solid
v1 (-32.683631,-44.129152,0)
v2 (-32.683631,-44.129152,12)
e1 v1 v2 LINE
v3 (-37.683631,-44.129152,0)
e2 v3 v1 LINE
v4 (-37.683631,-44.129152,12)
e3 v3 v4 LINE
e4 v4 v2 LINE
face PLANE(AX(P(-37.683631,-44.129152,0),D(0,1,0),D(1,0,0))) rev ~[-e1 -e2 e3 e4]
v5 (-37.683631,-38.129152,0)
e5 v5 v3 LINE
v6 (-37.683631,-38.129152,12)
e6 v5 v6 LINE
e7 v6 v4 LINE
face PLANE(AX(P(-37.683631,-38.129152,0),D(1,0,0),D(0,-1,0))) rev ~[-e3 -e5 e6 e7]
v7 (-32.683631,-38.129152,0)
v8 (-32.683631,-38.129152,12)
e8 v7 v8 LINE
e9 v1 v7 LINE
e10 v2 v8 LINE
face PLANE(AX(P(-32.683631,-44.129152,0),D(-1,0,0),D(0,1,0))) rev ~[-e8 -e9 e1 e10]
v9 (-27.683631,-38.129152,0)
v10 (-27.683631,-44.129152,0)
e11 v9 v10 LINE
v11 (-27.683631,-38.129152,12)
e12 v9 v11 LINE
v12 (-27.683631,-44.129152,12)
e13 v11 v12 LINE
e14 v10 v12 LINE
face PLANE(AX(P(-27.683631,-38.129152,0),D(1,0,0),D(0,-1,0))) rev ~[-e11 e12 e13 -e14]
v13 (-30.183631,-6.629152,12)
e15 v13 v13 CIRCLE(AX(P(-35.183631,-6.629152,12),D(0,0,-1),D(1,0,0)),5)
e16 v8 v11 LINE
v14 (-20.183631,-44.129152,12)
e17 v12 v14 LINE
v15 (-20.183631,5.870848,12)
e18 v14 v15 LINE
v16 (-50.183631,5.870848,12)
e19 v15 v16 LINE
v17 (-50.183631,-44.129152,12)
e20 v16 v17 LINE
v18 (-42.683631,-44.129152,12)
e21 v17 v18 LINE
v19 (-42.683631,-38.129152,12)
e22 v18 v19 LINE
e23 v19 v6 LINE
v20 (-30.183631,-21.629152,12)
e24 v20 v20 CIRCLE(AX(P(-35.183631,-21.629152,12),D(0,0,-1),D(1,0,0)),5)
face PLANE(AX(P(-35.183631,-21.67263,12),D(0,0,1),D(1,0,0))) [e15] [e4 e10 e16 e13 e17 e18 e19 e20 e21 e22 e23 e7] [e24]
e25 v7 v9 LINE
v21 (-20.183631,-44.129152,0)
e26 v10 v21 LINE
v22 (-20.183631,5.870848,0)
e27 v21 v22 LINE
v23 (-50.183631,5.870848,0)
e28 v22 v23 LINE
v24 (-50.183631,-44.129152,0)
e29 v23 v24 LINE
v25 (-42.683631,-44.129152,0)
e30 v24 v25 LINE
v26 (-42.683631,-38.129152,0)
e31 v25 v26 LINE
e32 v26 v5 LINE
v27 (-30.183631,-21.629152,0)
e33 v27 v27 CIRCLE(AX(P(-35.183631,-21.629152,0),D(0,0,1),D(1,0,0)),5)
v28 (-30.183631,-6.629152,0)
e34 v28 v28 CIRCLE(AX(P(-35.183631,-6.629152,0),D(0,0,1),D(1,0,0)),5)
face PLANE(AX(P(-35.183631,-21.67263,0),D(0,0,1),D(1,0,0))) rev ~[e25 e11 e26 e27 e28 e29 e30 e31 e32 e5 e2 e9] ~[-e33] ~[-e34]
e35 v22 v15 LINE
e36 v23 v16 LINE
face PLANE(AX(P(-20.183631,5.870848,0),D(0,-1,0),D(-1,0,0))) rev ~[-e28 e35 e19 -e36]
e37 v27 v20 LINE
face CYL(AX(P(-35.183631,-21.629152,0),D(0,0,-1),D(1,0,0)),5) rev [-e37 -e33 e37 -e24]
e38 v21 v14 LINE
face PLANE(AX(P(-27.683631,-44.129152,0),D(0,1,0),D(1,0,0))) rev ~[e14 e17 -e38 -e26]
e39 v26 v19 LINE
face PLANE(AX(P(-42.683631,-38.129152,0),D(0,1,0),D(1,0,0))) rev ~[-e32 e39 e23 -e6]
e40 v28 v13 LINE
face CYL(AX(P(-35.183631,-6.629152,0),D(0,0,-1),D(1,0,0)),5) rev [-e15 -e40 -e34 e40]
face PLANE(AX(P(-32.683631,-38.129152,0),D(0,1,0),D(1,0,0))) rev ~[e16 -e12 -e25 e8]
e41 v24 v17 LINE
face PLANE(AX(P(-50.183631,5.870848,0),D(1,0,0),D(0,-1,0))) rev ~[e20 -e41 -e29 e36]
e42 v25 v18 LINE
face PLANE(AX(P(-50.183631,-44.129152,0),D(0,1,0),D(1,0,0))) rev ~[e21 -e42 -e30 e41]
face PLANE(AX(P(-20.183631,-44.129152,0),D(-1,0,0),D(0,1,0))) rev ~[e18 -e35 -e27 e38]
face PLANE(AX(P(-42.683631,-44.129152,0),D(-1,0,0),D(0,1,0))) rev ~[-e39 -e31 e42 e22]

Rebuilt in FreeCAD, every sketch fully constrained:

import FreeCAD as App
import Part
import Sketcher
from FreeCAD import Vector


def add_polygon(sketch, points):
    """Adds a closed chain of lines whose ends are joined by coincident constraints."""
    first, n = sketch.GeometryCount, len(points)
    for a, b in zip(points, points[1:] + points[:1]):
        sketch.addGeometry(Part.LineSegment(App.Vector(*a, 0), App.Vector(*b, 0)), False)
    for i in range(n):
        sketch.addConstraint(Sketcher.Constraint("Coincident", first + i, 2, first + (i + 1) % n, 1))

doc = App.newDocument("Part")
body = doc.addObject("PartDesign::Body", "Body")

# Sketch on XY plane
sketch1 = body.newObject("Sketcher::SketchObject", "Sketch")
sketch1.AttachmentSupport = (doc.getObject("XY_Plane"), [""])
sketch1.MapMode = "FlatFace"
add_polygon(sketch1, [(-20.183631, 5.870848), (-50.183631, 5.870848), (-50.183631, -44.129152), (-42.683631, -44.129152), (-42.683631, -38.129152), (-37.683631, -38.129152), (-37.683631, -44.129152), (-32.683631, -44.129152), (-32.683631, -38.129152), (-27.683631, -38.129152), (-27.683631, -44.129152), (-20.183631, -44.129152)])  # lines 0-11
sketch1.addConstraint([
    Sketcher.Constraint("Horizontal", 0),
    Sketcher.Constraint("Vertical", 1),
    Sketcher.Constraint("Horizontal", 2),
    Sketcher.Constraint("Vertical", 3),
    Sketcher.Constraint("Horizontal", 4),
    Sketcher.Constraint("Vertical", 5),
    Sketcher.Constraint("Horizontal", 6),
    Sketcher.Constraint("Vertical", 7),
    Sketcher.Constraint("Horizontal", 8),
    Sketcher.Constraint("Vertical", 9),
    Sketcher.Constraint("Horizontal", 10),
    Sketcher.Constraint("Vertical", 11),
    Sketcher.Constraint("Horizontal", 2, 2, 5, 2),
    Sketcher.Constraint("Horizontal", 4, 2, 7, 2),
    Sketcher.Constraint("Horizontal", 6, 2, 9, 2),
    Sketcher.Constraint("Equal", 4, 6),
    Sketcher.Constraint("Equal", 6, 8),
    Sketcher.Constraint("Equal", 2, 10),
    Sketcher.Constraint("DistanceX", 0, 2, 0, 1, 30.0),
    Sketcher.Constraint("DistanceX", 4, 1, 4, 2, 5.0),
    Sketcher.Constraint("DistanceY", 1, 2, 1, 1, 50.0),
    Sketcher.Constraint("DistanceY", 3, 1, 3, 2, 6.0),
    Sketcher.Constraint("DistanceX", 0, 2, -1, 1, 50.183631),
    Sketcher.Constraint("DistanceY", 1, 2, -1, 1, 44.129152),
])
pad1 = body.newObject("PartDesign::Pad", "Pad")
pad1.Profile = sketch1
pad1.Length = 12

# Sketch on XY plane
sketch2 = body.newObject("Sketcher::SketchObject", "Sketch001")
sketch2.AttachmentSupport = (doc.getObject("XY_Plane"), [""])
sketch2.MapMode = "FlatFace"
sketch2.addGeometry([
    Part.Circle(Vector(-35.183631, -6.629152, 0), Vector(0, 0, 1), 5),
    Part.Circle(Vector(-35.183631, -21.629152, 0), Vector(0, 0, 1), 5),
], False)
sketch2.addConstraint([
    Sketcher.Constraint("Equal", 0, 1),
    Sketcher.Constraint("Vertical", 0, 3, 1, 3),
    Sketcher.Constraint("Diameter", 0, 10.0),
    Sketcher.Constraint("DistanceY", 1, 3, 0, 3, 15.0),
    Sketcher.Constraint("DistanceX", 0, 3, -1, 1, 35.183631),
    Sketcher.Constraint("DistanceY", 0, 3, -1, 1, 6.629152),
])
pocket1 = body.newObject("PartDesign::Pocket", "Pocket")
pocket1.Profile = sketch2
pocket1.Length = 77.7
pocket1.Reversed = True

doc.recompute()
